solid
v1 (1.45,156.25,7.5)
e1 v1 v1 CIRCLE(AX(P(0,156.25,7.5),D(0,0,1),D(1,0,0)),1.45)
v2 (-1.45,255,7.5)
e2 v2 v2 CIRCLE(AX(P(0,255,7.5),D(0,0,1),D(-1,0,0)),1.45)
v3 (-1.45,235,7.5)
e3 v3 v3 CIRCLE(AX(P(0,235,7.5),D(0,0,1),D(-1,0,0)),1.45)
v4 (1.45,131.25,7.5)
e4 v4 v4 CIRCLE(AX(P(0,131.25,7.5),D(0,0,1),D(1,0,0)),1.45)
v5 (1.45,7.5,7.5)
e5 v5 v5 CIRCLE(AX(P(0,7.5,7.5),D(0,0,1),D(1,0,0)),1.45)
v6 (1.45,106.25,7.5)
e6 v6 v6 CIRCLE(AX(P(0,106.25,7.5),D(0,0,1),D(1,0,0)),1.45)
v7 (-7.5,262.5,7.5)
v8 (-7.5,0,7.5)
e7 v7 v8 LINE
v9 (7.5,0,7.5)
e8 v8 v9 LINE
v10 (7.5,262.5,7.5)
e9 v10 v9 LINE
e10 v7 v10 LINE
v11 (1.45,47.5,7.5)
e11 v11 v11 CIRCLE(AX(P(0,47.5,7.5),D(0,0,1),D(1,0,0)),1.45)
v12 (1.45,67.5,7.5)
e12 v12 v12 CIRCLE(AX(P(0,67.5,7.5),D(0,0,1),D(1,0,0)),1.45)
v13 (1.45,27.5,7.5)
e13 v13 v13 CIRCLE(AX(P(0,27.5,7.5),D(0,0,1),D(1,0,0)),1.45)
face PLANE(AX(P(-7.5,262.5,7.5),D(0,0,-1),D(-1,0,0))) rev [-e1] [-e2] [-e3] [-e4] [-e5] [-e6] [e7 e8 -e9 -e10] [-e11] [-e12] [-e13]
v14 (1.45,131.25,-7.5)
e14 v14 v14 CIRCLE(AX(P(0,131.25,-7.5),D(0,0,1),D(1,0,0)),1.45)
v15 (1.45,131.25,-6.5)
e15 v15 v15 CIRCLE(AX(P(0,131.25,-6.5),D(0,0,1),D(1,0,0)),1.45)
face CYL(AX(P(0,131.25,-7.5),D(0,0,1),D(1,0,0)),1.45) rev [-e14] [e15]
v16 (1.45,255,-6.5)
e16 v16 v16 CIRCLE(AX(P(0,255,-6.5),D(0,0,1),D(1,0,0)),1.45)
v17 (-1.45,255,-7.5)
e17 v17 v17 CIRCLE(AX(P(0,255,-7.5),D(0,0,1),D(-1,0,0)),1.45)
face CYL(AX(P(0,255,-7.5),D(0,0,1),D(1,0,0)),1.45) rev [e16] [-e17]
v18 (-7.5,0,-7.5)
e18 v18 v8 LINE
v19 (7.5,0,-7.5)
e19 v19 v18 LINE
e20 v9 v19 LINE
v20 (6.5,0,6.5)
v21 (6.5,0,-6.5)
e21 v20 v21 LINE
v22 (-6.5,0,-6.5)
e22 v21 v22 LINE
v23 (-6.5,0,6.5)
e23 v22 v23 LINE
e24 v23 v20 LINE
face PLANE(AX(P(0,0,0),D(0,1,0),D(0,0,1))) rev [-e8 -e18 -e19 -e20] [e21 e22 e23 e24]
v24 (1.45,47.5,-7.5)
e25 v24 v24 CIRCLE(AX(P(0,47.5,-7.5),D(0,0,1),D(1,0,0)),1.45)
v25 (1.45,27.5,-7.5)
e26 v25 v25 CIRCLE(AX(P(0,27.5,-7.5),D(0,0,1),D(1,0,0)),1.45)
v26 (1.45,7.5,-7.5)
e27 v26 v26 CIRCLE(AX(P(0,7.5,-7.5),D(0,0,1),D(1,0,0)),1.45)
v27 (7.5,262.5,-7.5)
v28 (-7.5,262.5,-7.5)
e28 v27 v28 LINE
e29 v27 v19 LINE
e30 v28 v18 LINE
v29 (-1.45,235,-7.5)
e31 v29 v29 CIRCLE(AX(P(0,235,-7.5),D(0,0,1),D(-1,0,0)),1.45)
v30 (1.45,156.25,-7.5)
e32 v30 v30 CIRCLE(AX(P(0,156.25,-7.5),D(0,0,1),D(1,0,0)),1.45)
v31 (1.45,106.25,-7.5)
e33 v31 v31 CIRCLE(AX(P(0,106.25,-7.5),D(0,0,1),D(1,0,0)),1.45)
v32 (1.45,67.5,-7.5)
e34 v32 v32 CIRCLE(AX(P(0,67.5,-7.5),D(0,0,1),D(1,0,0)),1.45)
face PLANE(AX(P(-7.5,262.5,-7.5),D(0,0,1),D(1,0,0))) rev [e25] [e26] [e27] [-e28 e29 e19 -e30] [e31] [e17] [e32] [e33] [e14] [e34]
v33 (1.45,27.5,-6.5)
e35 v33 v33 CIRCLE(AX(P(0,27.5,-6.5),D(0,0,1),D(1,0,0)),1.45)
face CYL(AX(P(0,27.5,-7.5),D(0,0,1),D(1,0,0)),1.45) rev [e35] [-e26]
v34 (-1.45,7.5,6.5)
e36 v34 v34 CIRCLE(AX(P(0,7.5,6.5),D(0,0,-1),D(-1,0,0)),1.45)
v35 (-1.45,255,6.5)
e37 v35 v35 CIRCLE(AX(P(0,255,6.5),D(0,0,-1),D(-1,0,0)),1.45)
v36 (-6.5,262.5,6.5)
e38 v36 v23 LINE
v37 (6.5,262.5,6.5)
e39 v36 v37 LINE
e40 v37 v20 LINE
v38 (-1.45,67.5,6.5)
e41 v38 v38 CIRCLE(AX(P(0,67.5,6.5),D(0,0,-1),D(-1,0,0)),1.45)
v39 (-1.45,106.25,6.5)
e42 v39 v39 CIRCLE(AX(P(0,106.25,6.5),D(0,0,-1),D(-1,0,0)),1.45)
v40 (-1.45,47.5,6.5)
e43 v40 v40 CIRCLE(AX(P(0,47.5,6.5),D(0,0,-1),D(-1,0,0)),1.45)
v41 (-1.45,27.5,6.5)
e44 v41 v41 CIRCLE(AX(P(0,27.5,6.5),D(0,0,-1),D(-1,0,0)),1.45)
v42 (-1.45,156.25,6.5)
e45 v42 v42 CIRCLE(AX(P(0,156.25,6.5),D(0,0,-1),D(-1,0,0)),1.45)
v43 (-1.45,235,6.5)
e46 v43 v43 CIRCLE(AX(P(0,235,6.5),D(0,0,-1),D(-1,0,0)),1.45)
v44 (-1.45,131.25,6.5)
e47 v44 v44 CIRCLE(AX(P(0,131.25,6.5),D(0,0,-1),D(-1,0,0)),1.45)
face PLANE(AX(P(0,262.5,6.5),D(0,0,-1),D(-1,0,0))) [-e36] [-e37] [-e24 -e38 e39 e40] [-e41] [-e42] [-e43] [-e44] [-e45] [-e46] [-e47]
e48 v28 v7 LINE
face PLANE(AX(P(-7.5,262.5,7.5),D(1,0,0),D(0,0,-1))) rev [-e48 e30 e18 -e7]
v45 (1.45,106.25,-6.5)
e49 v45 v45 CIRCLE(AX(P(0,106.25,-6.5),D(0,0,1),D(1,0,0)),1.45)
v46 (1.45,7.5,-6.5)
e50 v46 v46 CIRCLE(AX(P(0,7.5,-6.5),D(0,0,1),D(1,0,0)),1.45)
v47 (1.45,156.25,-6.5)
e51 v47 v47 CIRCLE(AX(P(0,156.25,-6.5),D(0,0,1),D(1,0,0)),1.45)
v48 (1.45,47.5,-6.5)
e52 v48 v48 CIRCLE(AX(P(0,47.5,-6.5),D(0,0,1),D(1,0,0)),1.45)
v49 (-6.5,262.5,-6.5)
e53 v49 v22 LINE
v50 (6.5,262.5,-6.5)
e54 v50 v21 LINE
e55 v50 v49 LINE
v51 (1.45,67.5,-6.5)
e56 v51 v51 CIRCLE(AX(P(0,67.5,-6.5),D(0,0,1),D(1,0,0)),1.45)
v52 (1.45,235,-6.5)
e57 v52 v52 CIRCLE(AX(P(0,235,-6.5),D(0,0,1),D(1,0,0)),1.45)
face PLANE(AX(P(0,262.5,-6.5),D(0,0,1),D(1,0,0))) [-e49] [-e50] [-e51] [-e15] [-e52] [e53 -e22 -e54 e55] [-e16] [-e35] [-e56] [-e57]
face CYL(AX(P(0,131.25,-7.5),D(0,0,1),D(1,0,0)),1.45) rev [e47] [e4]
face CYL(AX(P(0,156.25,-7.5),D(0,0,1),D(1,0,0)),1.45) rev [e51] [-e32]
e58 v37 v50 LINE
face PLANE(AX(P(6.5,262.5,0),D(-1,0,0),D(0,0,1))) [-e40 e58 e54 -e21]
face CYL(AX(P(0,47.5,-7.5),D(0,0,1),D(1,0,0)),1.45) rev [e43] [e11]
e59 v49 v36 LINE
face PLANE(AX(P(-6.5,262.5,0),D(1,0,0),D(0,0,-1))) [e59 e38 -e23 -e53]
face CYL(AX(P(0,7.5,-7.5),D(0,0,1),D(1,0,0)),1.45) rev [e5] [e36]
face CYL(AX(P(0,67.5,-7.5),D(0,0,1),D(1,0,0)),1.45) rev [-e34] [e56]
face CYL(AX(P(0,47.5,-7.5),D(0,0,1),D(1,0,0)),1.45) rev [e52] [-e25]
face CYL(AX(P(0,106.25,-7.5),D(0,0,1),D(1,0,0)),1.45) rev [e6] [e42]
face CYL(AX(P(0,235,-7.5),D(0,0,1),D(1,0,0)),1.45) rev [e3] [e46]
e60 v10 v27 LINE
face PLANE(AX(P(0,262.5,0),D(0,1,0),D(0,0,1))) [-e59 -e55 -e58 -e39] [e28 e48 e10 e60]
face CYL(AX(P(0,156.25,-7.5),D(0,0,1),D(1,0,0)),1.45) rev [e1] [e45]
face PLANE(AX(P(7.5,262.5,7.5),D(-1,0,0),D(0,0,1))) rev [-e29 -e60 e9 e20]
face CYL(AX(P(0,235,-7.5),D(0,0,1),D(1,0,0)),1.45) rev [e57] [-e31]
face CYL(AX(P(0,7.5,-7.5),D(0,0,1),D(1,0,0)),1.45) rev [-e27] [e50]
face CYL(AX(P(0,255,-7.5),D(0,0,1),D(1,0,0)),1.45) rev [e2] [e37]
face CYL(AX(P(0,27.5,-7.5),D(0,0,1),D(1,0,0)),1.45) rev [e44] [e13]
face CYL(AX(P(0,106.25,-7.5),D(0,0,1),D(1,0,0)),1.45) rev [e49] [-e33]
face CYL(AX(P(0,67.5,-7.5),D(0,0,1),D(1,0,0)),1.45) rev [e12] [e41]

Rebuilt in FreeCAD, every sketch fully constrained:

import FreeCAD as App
import Part
import Sketcher

V = App.Vector

doc = App.newDocument("Part")
body = doc.addObject("PartDesign::Body", "Body")

# Sketch on XZ plane
sketch1 = body.newObject("Sketcher::SketchObject", "Sketch")
sketch1.AttachmentSupport = (doc.getObject("XZ_Plane"), [""])
sketch1.MapMode = "FlatFace"
sketch1.addGeometry(Part.LineSegment(V(-8, -8, 0), V(-8, 8, 0)), False)
sketch1.addGeometry(Part.LineSegment(V(-8, 8, 0), V(8, 8, 0)), False)
sketch1.addGeometry(Part.LineSegment(V(8, 8, 0), V(8, -8, 0)), False)
sketch1.addGeometry(Part.LineSegment(V(8, -8, 0), V(-8, -8, 0)), False)
sketch1.addGeometry(Part.LineSegment(V(6, 6, 0), V(-6, 6, 0)), False)
sketch1.addGeometry(Part.LineSegment(V(-6, 6, 0), V(-6, -6, 0)), False)
sketch1.addGeometry(Part.LineSegment(V(-6, -6, 0), V(6, -6, 0)), False)
sketch1.addGeometry(Part.LineSegment(V(6, -6, 0), V(6, 6, 0)), False)
sketch1.addConstraint(Sketcher.Constraint("Coincident", 0, 2, 1, 1))
sketch1.addConstraint(Sketcher.Constraint("Coincident", 1, 2, 2, 1))
sketch1.addConstraint(Sketcher.Constraint("Coincident", 2, 2, 3, 1))
sketch1.addConstraint(Sketcher.Constraint("Coincident", 3, 2, 0, 1))
sketch1.addConstraint(Sketcher.Constraint("Coincident", 4, 2, 5, 1))
sketch1.addConstraint(Sketcher.Constraint("Coincident", 5, 2, 6, 1))
sketch1.addConstraint(Sketcher.Constraint("Coincident", 6, 2, 7, 1))
sketch1.addConstraint(Sketcher.Constraint("Coincident", 7, 2, 4, 1))
sketch1.addConstraint(Sketcher.Constraint("Vertical", 0))
sketch1.addConstraint(Sketcher.Constraint("Horizontal", 1))
sketch1.addConstraint(Sketcher.Constraint("Vertical", 2))
sketch1.addConstraint(Sketcher.Constraint("Horizontal", 3))
sketch1.addConstraint(Sketcher.Constraint("Horizontal", 4))
sketch1.addConstraint(Sketcher.Constraint("Vertical", 5))
sketch1.addConstraint(Sketcher.Constraint("Horizontal", 6))
sketch1.addConstraint(Sketcher.Constraint("Vertical", 7))
sketch1.addConstraint(Sketcher.Constraint("Symmetric", 0, 2, 2, 2, -1, 1))
sketch1.addConstraint(Sketcher.Constraint("Symmetric", 4, 2, 6, 2, -1, 1))
sketch1.addConstraint(Sketcher.Constraint("Equal", 3, 0))
sketch1.addConstraint(Sketcher.Constraint("Equal", 6, 5))
sketch1.addConstraint(Sketcher.Constraint("DistanceX", 1, 1, 1, 2, 15.0))
sketch1.addConstraint(Sketcher.Constraint("DistanceX", 4, 2, 4, 1, 13.0))
pad1 = body.newObject("PartDesign::Pad", "Pad")
pad1.Profile = sketch1
pad1.Length = 262.5
pad1.Reversed = True

# Sketch on XY plane
sketch2 = body.newObject("Sketcher::SketchObject", "Sketch001")
sketch2.AttachmentSupport = (doc.getObject("XY_Plane"), [""])
sketch2.MapMode = "FlatFace"
sketch2.AttachmentOffset = App.Placement(V(0, 0, 7.5), App.Rotation())
sketch2.addGeometry(Part.Circle(V(0, 7.5, 0), V(0, 0, 1), 1.4), False)
sketch2.addGeometry(Part.Circle(V(0, 27.5, 0), V(0, 0, 1), 1.4), False)
sketch2.addGeometry(Part.Circle(V(0, 235, 0), V(0, 0, 1), 1.4), False)
sketch2.addGeometry(Part.Circle(V(0, 255, 0), V(0, 0, 1), 1.4), False)
sketch2.addGeometry(Part.Circle(V(0, 131.2, 0), V(0, 0, 1), 1.4), False)
sketch2.addGeometry(Part.Circle(V(0, 106.2, 0), V(0, 0, 1), 1.4), False)
sketch2.addGeometry(Part.Circle(V(0, 156.2, 0), V(0, 0, 1), 1.4), False)
sketch2.addGeometry(Part.Circle(V(0, 47.5, 0), V(0, 0, 1), 1.4), False)
sketch2.addGeometry(Part.Circle(V(0, 67.5, 0), V(0, 0, 1), 1.4), False)
sketch2.addConstraint(Sketcher.Constraint("Equal", 0, 1))
sketch2.addConstraint(Sketcher.Constraint("Equal", 1, 2))
sketch2.addConstraint(Sketcher.Constraint("Equal", 2, 3))
sketch2.addConstraint(Sketcher.Constraint("Equal", 3, 4))
sketch2.addConstraint(Sketcher.Constraint("Equal", 4, 5))
sketch2.addConstraint(Sketcher.Constraint("Equal", 5, 6))
sketch2.addConstraint(Sketcher.Constraint("Equal", 6, 7))
sketch2.addConstraint(Sketcher.Constraint("Equal", 7, 8))
sketch2.addConstraint(Sketcher.Constraint("PointOnObject", 0, 3, -2))
sketch2.addConstraint(Sketcher.Constraint("PointOnObject", 1, 3, -2))
sketch2.addConstraint(Sketcher.Constraint("PointOnObject", 2, 3, -2))
sketch2.addConstraint(Sketcher.Constraint("PointOnObject", 3, 3, -2))
sketch2.addConstraint(Sketcher.Constraint("PointOnObject", 4, 3, -2))
sketch2.addConstraint(Sketcher.Constraint("PointOnObject", 5, 3, -2))
sketch2.addConstraint(Sketcher.Constraint("PointOnObject", 6, 3, -2))
sketch2.addConstraint(Sketcher.Constraint("PointOnObject", 7, 3, -2))
sketch2.addConstraint(Sketcher.Constraint("PointOnObject", 8, 3, -2))
sketch2.addConstraint(Sketcher.Constraint("Diameter", 0, 2.9))
sketch2.addConstraint(Sketcher.Constraint("DistanceY", -1, 1, 2, 3, 235.0))
sketch2.addConstraint(Sketcher.Constraint("DistanceY", -1, 1, 3, 3, 255.0))
sketch2.addConstraint(Sketcher.Constraint("DistanceY", 0, 3, 1, 3, 20.0))
sketch2.addConstraint(Sketcher.Constraint("DistanceY", 5, 3, 4, 3, 25.0))
sketch2.addConstraint(Sketcher.Constraint("DistanceY", 4, 3, 6, 3, 25.0))
sketch2.addConstraint(Sketcher.Constraint("DistanceY", 1, 3, 7, 3, 20.0))
sketch2.addConstraint(Sketcher.Constraint("DistanceY", 7, 3, 8, 3, 20.0))
sketch2.addConstraint(Sketcher.Constraint("DistanceY", -1, 1, 0, 3, 7.5))
sketch2.addConstraint(Sketcher.Constraint("DistanceY", -1, 1, 4, 3, 131.25))
pocket1 = body.newObject("PartDesign::Pocket", "Pocket")
pocket1.Profile = sketch2
pocket1.Type = "ThroughAll"

doc.recompute()
